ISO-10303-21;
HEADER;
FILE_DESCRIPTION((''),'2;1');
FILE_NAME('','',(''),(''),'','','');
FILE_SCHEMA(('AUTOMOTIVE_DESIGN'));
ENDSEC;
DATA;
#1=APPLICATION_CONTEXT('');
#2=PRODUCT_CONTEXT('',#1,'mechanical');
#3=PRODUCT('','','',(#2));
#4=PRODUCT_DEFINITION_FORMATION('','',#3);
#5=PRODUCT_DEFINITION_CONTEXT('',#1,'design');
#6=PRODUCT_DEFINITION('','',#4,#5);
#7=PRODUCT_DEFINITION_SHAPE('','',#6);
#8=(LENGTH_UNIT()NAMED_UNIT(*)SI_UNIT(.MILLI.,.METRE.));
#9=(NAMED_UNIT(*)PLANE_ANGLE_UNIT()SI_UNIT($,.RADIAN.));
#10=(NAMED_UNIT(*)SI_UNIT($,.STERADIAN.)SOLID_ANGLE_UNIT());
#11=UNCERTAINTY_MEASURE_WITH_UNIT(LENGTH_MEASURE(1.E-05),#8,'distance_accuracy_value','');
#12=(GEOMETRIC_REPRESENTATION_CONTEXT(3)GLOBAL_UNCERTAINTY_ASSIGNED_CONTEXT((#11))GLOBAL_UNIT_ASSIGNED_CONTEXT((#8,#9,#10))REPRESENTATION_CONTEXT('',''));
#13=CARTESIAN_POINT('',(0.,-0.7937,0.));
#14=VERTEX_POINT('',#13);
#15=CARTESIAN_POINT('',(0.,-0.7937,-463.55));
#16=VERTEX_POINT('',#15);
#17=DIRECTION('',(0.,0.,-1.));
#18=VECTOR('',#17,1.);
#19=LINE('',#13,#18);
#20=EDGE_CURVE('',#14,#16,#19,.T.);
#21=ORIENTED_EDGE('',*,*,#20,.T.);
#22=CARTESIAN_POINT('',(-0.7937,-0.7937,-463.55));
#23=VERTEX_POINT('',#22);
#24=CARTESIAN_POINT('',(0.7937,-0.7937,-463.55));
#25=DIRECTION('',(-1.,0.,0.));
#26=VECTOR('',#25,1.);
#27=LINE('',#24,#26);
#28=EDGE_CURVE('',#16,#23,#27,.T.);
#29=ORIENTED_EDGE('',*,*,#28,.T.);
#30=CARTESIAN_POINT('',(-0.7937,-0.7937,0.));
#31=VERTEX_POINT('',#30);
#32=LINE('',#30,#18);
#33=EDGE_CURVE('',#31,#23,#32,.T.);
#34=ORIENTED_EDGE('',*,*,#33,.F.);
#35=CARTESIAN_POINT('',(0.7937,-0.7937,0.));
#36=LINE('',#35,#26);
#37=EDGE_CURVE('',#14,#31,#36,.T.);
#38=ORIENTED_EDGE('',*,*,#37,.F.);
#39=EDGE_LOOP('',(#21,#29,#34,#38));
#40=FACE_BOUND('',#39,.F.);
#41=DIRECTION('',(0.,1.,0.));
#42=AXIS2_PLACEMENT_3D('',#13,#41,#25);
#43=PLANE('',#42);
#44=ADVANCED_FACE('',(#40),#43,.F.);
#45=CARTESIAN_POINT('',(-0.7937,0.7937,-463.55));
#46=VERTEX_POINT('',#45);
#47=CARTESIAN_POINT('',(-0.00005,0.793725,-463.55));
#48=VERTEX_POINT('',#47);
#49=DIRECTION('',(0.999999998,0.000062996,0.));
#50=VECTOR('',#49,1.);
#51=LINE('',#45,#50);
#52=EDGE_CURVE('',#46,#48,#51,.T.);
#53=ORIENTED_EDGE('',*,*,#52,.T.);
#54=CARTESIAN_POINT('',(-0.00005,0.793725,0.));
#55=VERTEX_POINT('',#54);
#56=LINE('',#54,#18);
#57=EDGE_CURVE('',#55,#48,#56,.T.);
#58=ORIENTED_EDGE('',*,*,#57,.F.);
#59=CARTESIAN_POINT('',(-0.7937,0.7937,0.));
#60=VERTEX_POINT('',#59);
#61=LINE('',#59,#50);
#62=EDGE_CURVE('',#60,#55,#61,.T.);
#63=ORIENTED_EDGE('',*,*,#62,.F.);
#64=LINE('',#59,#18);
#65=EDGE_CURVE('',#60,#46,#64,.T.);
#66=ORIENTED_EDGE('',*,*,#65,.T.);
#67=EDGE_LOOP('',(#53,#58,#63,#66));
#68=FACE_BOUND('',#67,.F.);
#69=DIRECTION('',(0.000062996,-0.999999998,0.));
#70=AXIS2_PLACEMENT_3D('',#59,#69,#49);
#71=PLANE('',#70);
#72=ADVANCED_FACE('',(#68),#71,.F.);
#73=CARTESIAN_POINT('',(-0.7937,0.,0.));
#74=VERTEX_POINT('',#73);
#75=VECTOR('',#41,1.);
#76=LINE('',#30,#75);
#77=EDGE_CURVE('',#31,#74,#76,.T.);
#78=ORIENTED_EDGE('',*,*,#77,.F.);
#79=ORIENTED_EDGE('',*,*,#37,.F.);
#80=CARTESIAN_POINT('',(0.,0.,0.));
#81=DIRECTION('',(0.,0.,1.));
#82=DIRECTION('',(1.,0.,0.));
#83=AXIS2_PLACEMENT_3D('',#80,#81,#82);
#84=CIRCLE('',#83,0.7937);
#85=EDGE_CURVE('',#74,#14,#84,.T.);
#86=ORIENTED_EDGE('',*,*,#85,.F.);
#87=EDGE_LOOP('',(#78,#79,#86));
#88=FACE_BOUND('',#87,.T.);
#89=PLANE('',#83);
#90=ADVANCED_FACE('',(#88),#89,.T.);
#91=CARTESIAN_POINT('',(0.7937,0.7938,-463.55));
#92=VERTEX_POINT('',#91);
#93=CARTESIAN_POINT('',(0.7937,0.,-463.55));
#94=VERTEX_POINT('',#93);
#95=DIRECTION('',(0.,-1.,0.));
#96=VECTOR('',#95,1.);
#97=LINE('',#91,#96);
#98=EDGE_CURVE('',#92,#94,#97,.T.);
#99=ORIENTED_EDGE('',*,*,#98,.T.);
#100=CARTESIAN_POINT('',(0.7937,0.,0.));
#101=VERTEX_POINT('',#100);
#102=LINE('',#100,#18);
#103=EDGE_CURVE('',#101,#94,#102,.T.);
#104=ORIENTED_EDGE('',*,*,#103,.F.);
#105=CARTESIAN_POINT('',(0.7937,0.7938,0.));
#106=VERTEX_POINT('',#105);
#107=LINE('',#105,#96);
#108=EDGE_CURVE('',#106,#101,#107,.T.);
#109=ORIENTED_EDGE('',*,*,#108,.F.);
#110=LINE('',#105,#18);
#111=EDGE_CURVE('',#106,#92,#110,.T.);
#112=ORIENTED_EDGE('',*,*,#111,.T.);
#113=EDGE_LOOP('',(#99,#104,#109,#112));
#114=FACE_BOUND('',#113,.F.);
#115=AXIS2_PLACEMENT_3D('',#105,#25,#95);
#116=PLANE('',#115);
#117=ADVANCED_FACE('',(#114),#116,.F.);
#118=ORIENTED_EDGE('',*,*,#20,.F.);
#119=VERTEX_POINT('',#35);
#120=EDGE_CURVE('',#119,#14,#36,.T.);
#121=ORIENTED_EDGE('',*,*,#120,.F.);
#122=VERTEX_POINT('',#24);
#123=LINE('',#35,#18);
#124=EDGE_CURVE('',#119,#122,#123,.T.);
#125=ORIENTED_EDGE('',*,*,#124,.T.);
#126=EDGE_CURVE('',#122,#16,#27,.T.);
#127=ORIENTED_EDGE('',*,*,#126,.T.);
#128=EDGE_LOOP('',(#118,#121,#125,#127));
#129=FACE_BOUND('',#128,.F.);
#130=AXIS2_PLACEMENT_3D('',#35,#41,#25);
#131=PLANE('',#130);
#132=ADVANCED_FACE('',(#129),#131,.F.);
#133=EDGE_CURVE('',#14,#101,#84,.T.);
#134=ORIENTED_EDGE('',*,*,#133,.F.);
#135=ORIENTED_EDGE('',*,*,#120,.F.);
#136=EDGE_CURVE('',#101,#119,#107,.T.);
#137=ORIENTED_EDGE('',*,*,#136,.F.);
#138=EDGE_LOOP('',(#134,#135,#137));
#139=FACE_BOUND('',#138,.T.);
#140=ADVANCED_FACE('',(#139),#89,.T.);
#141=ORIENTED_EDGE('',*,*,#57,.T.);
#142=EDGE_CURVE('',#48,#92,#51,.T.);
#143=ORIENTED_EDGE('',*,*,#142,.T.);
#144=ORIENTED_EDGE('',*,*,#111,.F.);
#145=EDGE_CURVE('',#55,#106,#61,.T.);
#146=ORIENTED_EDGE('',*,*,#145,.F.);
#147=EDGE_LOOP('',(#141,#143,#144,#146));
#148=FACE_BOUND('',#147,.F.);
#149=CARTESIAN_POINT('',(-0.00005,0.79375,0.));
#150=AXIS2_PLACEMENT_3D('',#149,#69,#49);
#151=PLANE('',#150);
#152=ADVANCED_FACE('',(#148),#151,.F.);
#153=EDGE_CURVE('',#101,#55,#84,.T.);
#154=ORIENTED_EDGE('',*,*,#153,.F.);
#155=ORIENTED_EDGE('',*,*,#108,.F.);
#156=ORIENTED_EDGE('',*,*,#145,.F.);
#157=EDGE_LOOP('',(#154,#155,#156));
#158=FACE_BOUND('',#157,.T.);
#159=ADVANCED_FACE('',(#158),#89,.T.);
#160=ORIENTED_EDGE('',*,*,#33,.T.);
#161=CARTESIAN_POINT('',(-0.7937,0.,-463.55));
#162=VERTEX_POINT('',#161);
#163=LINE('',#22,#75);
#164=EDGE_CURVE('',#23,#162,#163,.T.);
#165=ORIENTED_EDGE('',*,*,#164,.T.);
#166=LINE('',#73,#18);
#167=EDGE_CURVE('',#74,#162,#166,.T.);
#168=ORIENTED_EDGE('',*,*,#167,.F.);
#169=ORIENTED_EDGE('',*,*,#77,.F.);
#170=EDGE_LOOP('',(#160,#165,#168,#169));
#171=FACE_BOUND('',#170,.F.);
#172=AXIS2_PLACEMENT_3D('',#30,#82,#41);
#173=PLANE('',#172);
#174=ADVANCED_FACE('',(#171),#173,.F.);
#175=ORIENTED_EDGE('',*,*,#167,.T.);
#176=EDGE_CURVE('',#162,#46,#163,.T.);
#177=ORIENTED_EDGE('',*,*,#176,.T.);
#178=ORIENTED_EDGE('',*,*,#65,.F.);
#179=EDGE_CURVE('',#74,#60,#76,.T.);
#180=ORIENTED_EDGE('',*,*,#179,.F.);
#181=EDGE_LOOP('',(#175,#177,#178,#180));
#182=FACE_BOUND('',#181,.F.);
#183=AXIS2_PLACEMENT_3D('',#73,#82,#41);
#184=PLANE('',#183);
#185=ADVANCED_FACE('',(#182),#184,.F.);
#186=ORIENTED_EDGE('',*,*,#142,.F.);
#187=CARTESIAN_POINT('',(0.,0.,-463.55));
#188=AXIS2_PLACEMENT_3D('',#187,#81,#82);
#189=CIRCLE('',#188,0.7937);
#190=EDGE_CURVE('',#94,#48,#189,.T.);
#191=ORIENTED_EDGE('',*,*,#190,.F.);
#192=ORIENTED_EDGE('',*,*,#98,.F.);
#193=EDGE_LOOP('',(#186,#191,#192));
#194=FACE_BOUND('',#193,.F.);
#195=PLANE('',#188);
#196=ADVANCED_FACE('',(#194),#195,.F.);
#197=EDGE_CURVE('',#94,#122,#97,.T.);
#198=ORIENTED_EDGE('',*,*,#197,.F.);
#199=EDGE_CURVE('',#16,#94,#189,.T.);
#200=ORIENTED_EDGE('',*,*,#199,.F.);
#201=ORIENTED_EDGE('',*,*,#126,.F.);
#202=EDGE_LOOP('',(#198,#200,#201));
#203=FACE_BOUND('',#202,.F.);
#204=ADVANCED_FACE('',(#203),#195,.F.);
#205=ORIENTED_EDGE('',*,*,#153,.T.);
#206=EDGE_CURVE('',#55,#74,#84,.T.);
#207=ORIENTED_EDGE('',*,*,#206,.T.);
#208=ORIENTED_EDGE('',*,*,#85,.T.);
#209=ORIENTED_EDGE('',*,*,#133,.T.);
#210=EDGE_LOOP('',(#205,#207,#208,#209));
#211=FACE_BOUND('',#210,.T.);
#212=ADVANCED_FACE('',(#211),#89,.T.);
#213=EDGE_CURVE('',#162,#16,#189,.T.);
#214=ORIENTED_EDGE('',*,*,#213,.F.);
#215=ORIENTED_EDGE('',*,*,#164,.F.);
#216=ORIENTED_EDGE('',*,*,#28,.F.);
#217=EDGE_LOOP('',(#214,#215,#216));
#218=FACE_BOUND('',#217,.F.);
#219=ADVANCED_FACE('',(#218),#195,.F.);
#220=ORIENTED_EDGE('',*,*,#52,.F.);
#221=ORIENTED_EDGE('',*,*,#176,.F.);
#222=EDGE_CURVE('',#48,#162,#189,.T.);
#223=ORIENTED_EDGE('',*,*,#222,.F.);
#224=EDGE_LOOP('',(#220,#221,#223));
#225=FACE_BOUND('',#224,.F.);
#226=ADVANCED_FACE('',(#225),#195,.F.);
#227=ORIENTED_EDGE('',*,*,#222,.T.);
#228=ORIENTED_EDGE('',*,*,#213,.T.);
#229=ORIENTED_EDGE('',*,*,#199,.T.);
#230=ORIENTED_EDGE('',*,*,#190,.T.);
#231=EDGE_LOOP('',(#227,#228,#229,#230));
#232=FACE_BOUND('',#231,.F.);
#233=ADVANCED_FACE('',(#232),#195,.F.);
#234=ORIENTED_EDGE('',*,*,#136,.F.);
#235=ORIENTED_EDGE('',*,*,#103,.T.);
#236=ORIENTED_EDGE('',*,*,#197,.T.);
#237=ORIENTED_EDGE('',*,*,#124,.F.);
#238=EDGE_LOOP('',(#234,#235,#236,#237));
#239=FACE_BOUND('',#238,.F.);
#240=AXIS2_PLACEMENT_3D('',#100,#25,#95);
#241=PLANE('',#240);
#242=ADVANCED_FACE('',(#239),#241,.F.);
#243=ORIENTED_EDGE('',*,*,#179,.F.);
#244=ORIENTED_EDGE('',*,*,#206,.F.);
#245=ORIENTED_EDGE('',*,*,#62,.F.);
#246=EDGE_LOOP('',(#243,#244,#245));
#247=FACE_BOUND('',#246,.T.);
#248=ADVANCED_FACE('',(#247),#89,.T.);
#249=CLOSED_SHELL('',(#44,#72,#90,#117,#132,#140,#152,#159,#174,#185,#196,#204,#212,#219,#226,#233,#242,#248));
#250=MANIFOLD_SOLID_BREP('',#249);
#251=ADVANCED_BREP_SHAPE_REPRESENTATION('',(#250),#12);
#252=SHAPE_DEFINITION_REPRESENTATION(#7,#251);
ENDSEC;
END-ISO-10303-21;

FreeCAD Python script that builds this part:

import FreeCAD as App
import Part
import Sketcher
from FreeCAD import Vector
Q = App.Units.Quantity


def add_polygon(sketch, points):
    """Adds a closed chain of lines whose ends are joined by coincident constraints."""
    first, n = sketch.GeometryCount, len(points)
    for a, b in zip(points, points[1:] + points[:1]):
        sketch.addGeometry(Part.LineSegment(App.Vector(*a, 0), App.Vector(*b, 0)), False)
    for i in range(n):
        sketch.addConstraint(Sketcher.Constraint("Coincident", first + i, 2, first + (i + 1) % n, 1))

doc = App.newDocument("Part")
body = doc.addObject("PartDesign::Body", "Body")

sketch1 = doc.addObject("Sketcher::SketchObject", "Sketch")
body.addObject(sketch1)
sketch1.AttachmentSupport = (doc.XY_Plane, [""])
sketch1.MapMode = "FlatFace"
add_polygon(sketch1, [(0.8, -0.8), (0.8, 0.8), (-0.8, 0.8), (-0.8, -0.8)])
sketch1.addConstraint([
    Sketcher.Constraint("Vertical", 0),
    Sketcher.Constraint("Horizontal", 1),
    Sketcher.Constraint("Vertical", 2),
    Sketcher.Constraint("Horizontal", 3),
    Sketcher.Constraint("Symmetric", 0, 2, 2, 2, -1, 1),
    Sketcher.Constraint("Equal", 3, 0),
    Sketcher.Constraint("DistanceX", 1, 2, 1, 1, Q("0.0625 in")),
])
pad1 = doc.addObject("PartDesign::Pad", "Pad")
body.addObject(pad1)
pad1.Profile = sketch1
pad1.Length = Q("18.25 in")
pad1.Reversed = True

doc.recompute()
